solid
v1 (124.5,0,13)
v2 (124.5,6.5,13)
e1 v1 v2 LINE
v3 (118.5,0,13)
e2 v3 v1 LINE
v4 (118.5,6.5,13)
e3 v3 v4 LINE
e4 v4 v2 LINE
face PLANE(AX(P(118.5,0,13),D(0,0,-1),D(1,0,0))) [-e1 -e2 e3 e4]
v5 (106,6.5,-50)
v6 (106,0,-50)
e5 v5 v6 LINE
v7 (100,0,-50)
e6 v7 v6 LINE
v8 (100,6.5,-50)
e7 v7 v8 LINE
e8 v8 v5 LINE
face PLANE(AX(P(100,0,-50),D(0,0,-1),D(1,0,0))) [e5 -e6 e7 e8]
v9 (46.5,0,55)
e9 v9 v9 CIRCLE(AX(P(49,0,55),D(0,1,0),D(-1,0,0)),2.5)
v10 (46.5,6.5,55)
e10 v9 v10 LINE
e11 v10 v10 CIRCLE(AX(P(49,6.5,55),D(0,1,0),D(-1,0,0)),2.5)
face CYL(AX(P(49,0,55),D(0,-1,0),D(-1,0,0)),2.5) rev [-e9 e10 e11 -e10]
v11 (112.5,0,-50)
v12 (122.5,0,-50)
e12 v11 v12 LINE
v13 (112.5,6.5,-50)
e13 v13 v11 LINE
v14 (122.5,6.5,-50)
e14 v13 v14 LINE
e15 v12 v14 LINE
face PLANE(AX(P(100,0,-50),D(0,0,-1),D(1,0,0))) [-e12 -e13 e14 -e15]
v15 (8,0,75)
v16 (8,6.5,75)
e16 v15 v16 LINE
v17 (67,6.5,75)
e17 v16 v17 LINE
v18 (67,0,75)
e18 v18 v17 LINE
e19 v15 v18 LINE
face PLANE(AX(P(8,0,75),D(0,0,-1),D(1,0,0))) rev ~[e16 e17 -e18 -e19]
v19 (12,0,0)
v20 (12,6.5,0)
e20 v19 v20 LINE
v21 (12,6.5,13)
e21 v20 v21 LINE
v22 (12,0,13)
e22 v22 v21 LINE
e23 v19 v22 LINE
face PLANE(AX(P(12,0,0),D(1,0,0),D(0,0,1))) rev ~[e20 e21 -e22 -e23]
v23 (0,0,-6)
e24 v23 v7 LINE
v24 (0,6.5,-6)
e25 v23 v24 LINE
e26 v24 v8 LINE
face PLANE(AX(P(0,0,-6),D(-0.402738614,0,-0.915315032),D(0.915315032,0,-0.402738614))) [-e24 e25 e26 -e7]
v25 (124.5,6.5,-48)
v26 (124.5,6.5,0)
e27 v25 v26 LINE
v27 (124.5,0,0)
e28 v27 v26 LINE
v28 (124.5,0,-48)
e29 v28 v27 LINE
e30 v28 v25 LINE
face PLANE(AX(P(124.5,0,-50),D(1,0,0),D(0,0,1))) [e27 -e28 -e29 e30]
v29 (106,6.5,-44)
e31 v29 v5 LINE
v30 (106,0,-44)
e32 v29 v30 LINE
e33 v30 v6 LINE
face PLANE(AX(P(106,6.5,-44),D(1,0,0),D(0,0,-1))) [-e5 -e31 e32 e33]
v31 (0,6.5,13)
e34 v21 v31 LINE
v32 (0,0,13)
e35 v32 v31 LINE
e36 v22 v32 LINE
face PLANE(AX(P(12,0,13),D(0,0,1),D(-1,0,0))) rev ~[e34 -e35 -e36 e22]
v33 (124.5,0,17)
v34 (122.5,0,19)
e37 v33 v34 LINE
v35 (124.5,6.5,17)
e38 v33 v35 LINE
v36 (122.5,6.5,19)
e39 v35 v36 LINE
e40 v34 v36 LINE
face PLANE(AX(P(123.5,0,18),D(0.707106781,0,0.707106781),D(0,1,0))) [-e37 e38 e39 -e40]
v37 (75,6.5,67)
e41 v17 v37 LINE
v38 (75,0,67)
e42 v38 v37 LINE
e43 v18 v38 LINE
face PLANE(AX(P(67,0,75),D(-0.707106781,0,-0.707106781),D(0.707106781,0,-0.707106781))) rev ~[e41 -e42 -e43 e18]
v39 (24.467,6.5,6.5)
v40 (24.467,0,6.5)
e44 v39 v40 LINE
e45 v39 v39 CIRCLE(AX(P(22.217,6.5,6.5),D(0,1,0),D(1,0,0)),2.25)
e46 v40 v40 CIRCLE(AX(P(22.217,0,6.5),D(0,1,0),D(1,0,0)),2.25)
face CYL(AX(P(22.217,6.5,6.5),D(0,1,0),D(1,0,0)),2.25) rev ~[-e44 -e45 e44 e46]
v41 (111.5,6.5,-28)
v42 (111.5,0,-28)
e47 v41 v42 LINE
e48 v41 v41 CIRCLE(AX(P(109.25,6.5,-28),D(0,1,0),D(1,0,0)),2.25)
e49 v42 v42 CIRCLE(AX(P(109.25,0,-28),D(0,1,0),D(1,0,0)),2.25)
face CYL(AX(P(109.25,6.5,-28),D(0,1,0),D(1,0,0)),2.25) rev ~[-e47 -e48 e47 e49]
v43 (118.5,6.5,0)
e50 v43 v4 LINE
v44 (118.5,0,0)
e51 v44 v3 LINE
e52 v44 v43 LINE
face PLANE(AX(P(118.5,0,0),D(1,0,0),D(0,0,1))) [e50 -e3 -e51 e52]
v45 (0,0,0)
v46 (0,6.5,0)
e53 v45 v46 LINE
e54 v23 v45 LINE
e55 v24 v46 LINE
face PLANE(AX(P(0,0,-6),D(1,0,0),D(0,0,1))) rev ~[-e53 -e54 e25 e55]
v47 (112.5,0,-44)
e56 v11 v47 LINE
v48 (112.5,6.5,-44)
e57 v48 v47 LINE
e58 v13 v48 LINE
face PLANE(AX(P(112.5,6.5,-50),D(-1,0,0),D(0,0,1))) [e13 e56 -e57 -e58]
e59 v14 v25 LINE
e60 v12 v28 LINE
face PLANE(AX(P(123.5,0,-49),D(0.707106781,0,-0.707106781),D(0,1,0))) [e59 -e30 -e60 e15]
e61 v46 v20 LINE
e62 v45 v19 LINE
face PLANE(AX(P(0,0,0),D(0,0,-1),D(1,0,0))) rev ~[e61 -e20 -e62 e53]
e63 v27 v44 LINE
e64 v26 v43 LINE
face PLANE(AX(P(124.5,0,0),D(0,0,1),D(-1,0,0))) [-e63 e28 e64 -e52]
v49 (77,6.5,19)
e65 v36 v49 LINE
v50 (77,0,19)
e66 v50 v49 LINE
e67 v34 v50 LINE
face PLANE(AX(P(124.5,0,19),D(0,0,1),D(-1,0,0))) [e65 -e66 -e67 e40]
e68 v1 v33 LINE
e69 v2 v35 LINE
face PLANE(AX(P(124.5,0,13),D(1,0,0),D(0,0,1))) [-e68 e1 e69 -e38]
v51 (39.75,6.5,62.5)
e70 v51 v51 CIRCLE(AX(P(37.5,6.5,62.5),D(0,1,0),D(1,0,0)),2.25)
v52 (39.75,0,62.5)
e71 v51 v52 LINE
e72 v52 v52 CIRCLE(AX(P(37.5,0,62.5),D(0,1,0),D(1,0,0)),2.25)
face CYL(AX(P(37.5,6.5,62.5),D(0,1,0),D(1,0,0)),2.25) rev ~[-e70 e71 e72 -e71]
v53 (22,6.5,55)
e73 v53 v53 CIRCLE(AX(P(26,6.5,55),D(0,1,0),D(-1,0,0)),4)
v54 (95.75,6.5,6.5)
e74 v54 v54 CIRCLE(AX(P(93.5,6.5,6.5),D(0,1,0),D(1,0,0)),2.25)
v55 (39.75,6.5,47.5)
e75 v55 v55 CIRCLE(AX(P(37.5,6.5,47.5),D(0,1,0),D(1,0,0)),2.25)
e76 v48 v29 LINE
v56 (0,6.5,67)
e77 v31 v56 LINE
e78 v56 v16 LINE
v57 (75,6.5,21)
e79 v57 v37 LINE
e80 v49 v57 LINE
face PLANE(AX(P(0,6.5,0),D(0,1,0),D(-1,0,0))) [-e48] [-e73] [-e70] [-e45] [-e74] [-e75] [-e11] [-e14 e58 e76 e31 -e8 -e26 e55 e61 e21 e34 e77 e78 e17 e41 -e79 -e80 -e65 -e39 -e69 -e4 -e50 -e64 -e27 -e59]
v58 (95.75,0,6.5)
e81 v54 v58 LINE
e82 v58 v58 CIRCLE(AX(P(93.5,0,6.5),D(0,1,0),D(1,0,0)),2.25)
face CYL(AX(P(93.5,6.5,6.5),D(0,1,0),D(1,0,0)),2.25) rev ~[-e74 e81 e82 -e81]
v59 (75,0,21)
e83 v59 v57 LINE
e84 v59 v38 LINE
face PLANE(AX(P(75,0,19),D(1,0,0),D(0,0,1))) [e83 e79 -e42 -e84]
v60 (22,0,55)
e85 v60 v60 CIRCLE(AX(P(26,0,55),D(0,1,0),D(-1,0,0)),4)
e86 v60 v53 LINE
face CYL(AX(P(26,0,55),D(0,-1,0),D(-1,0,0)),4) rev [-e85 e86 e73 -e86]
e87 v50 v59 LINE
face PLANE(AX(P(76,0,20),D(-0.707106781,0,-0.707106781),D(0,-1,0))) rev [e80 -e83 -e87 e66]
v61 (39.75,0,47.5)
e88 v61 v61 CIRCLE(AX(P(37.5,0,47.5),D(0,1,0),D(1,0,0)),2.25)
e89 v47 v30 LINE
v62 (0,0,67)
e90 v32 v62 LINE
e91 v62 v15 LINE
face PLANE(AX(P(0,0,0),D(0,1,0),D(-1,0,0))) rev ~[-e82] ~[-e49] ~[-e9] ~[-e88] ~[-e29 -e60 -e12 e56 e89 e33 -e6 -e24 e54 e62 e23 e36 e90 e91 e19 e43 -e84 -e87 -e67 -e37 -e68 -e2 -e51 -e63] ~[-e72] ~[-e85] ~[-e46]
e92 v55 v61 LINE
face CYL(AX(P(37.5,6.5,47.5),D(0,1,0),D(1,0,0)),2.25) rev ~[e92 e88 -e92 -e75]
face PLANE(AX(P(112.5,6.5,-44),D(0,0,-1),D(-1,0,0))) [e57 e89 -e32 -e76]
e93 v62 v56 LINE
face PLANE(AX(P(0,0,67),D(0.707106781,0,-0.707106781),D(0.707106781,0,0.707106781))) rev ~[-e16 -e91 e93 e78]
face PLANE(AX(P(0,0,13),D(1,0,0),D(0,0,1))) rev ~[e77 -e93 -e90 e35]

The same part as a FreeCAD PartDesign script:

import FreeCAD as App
import Part
import Sketcher


def edges_at(feature, points):
    """Names of the edges that pass closest to the given points."""
    edges = feature.Shape.Edges
    near = lambda p: min(range(len(edges)), key=lambda i: edges[i].distToShape(Part.Vertex(*p))[0])
    return sorted({f"Edge{near(p) + 1}" for p in points})

doc = App.newDocument("Part")
params = doc.addObject("Spreadsheet::Sheet", "Params")
for row, (alias, value) in enumerate([
    ("sketch1_diameter", "5 mm"),
    ("sketch1_diameter2", "8 mm"),
    ("sketch1_width", "12 mm"),
    ("sketch1_width2", "6 mm"),
    ("sketch1_height", "13 mm"),
    ("pad1_length", "6.5 mm"),
    ("sketch2_height", "6 mm"),
    ("sketch2_width", "6.5 mm"),
    ("chamfer_size", "2 mm"),
    ("sketch3_diameter", "4.5 mm"),
    ("sketch4_diameter", "4.5 mm"),
], start=1):
    params.set(f"A{row}", alias)
    params.set(f"B{row}", "=" + value)
    params.setAlias(f"B{row}", alias)

body = doc.addObject("PartDesign::Body", "Body")

# Sketch on XZ plane
sketch1 = body.newObject("Sketcher::SketchObject", "Sketch")
sketch1.AttachmentSupport = (doc.getObject("XZ_Plane"), [""])
sketch1.MapMode = "FlatFace"
sketch1.addGeometry([
    Part.LineSegment(App.Vector(100, -50, 0), App.Vector(0, -6, 0)),  # 0
    Part.LineSegment(App.Vector(0, -6, 0), App.Vector(0, 0, 0)),  # 1
    Part.LineSegment(App.Vector(0, 0, 0), App.Vector(12, 0, 0)),  # 2
    Part.LineSegment(App.Vector(12, 0, 0), App.Vector(12, 13, 0)),  # 3
    Part.LineSegment(App.Vector(12, 13, 0), App.Vector(0, 13, 0)),  # 4
    Part.LineSegment(App.Vector(0, 13, 0), App.Vector(0, 67, 0)),  # 5
    Part.LineSegment(App.Vector(0, 67, 0), App.Vector(8, 75, 0)),  # 6
    Part.LineSegment(App.Vector(8, 75, 0), App.Vector(67, 75, 0)),  # 7
    Part.LineSegment(App.Vector(67, 75, 0), App.Vector(75, 67, 0)),  # 8
    Part.LineSegment(App.Vector(75, 67, 0), App.Vector(75, 19, 0)),  # 9
    Part.LineSegment(App.Vector(75, 19, 0), App.Vector(124.5, 19, 0)),  # 10
    Part.LineSegment(App.Vector(124.5, 19, 0), App.Vector(124.5, 13, 0)),  # 11
    Part.LineSegment(App.Vector(124.5, 13, 0), App.Vector(118.5, 13, 0)),  # 12
    Part.LineSegment(App.Vector(118.5, 13, 0), App.Vector(118.5, 0, 0)),  # 13
    Part.LineSegment(App.Vector(118.5, 0, 0), App.Vector(124.5, 0, 0)),  # 14
    Part.LineSegment(App.Vector(124.5, 0, 0), App.Vector(124.5, -50, 0)),  # 15
    Part.LineSegment(App.Vector(124.5, -50, 0), App.Vector(100, -50, 0)),  # 16
    Part.Circle(App.Vector(49, 55, 0), App.Vector(0, 0, 1), 2.5),  # 17
    Part.Circle(App.Vector(26, 55, 0), App.Vector(0, 0, 1), 4),  # 18
], False)
sketch1.addConstraint([
    Sketcher.Constraint("Coincident", 0, 2, 1, 1),
    Sketcher.Constraint("Coincident", 1, 2, 2, 1),
    Sketcher.Constraint("Coincident", 2, 2, 3, 1),
    Sketcher.Constraint("Coincident", 3, 2, 4, 1),
    Sketcher.Constraint("Coincident", 4, 2, 5, 1),
    Sketcher.Constraint("Coincident", 5, 2, 6, 1),
    Sketcher.Constraint("Coincident", 6, 2, 7, 1),
    Sketcher.Constraint("Coincident", 7, 2, 8, 1),
    Sketcher.Constraint("Coincident", 8, 2, 9, 1),
    Sketcher.Constraint("Coincident", 9, 2, 10, 1),
    Sketcher.Constraint("Coincident", 10, 2, 11, 1),
    Sketcher.Constraint("Coincident", 11, 2, 12, 1),
    Sketcher.Constraint("Coincident", 12, 2, 13, 1),
    Sketcher.Constraint("Coincident", 13, 2, 14, 1),
    Sketcher.Constraint("Coincident", 14, 2, 15, 1),
    Sketcher.Constraint("Coincident", 15, 2, 16, 1),
    Sketcher.Constraint("Coincident", 16, 2, 0, 1),
    Sketcher.Constraint("Vertical", 1),
    Sketcher.Constraint("Horizontal", 2),
    Sketcher.Constraint("Vertical", 3),
    Sketcher.Constraint("Horizontal", 4),
    Sketcher.Constraint("Vertical", 5),
    Sketcher.Constraint("Horizontal", 7),
    Sketcher.Constraint("Vertical", 9),
    Sketcher.Constraint("Horizontal", 10),
    Sketcher.Constraint("Vertical", 11),
    Sketcher.Constraint("Horizontal", 12),
    Sketcher.Constraint("Vertical", 13),
    Sketcher.Constraint("Horizontal", 14),
    Sketcher.Constraint("Vertical", 15),
    Sketcher.Constraint("Horizontal", 16),
    Sketcher.Constraint("Coincident", 1, 2, -1, 1),
    Sketcher.Constraint("PointOnObject", 4, 2, -2),
    Sketcher.Constraint("PointOnObject", 13, 2, -1),
    Sketcher.Constraint("Perpendicular", 6, 8),
    Sketcher.Constraint("Horizontal", 17, 3, 18, 3),
    Sketcher.Constraint("Horizontal", 5, 2, 8, 2),
    Sketcher.Constraint("Horizontal", 4, 2, 11, 2),
    Sketcher.Constraint("Vertical", 11, 2, 14, 2),
    Sketcher.Constraint("Equal", 14, 1),
    Sketcher.Constraint("Equal", 1, 11),
    Sketcher.Constraint("Equal", 6, 8),
    Sketcher.Constraint("Diameter", 17, 5.0),
    Sketcher.Constraint("Diameter", 18, 8.0),
    Sketcher.Constraint("DistanceX", 2, 1, 2, 2, 12.0),
    Sketcher.Constraint("DistanceX", 12, 2, 12, 1, 6.0),
    Sketcher.Constraint("DistanceY", 3, 1, 3, 2, 13.0),
    Sketcher.Constraint("DistanceY", 15, 2, 15, 1, 50.0),
    Sketcher.Constraint("DistanceX", -1, 1, 18, 3, 26.0),
    Sketcher.Constraint("DistanceX", -1, 1, 6, 2, 8.0),
    Sketcher.Constraint("DistanceY", -1, 1, 6, 2, 75.0),
    Sketcher.Constraint("DistanceX", -1, 1, 8, 2, 75.0),
    Sketcher.Constraint("DistanceX", 18, 3, 17, 3, 23.0),
    Sketcher.Constraint("DistanceY", 3, 2, 18, 3, 42.0),
    Sketcher.Constraint("DistanceX", 10, 1, 10, 2, 49.5),
    Sketcher.Constraint("DistanceX", 16, 2, 16, 1, 24.5),
])
sketch1.setExpression("Constraints[42]", "Params.sketch1_diameter")
sketch1.setExpression("Constraints[43]", "Params.sketch1_diameter2")
sketch1.setExpression("Constraints[44]", "Params.sketch1_width")
sketch1.setExpression("Constraints[45]", "Params.sketch1_width2")
sketch1.setExpression("Constraints[46]", "Params.sketch1_height")
pad1 = body.newObject("PartDesign::Pad", "Pad")
pad1.Profile = sketch1
pad1.setExpression("Length", "Params.pad1_length")
pad1.Reversed = True

# Sketch on XZ plane
sketch2 = body.newObject("Sketcher::SketchObject", "Sketch001")
sketch2.AttachmentSupport = (doc.getObject("XZ_Plane"), [""])
sketch2.MapMode = "FlatFace"
sketch2.AttachmentOffset = App.Placement(App.Vector(0, 0, -6.5), App.Rotation())
sketch2.addGeometry([
    Part.LineSegment(App.Vector(112.5, -44, 0), App.Vector(112.5, -50, 0)),
    Part.LineSegment(App.Vector(112.5, -50, 0), App.Vector(106, -50, 0)),
    Part.LineSegment(App.Vector(106, -50, 0), App.Vector(106, -44, 0)),
    Part.LineSegment(App.Vector(106, -44, 0), App.Vector(112.5, -44, 0)),
], False)
sketch2.addConstraint([
    Sketcher.Constraint("Coincident", 0, 2, 1, 1),
    Sketcher.Constraint("Coincident", 1, 2, 2, 1),
    Sketcher.Constraint("Coincident", 2, 2, 3, 1),
    Sketcher.Constraint("Coincident", 3, 2, 0, 1),
    Sketcher.Constraint("Vertical", 0),
    Sketcher.Constraint("Horizontal", 1),
    Sketcher.Constraint("Vertical", 2),
    Sketcher.Constraint("Horizontal", 3),
    Sketcher.Constraint("DistanceY", 0, 2, 0, 1, 6.0),
    Sketcher.Constraint("DistanceX", 1, 2, 1, 1, 6.5),
    Sketcher.Constraint("DistanceY", 0, 2, -1, 1, 50.0),
    Sketcher.Constraint("DistanceX", -1, 1, 1, 2, 106.0),
])
sketch2.setExpression("Constraints[8]", "Params.sketch2_height")
sketch2.setExpression("Constraints[9]", "Params.sketch2_width")
pocket1 = body.newObject("PartDesign::Pocket", "Pocket")
pocket1.Profile = sketch2
pocket1.Type = "ThroughAll"
pocket1.Reversed = True
doc.recompute()

chamfer = body.newObject("PartDesign::Chamfer", "Chamfer")
chamfer.Base = (pocket1, edges_at(pocket1, [(75, 3.25, 19), (124.5, 3.25, 19), (124.5, 3.25, -50)]))
chamfer.setExpression("Size", "Params.chamfer_size")

# Sketch on XZ plane
sketch3 = body.newObject("Sketcher::SketchObject", "Sketch002")
sketch3.AttachmentSupport = (doc.getObject("XZ_Plane"), [""])
sketch3.MapMode = "FlatFace"
sketch3.AttachmentOffset = App.Placement(App.Vector(0, 0, -6.5), App.Rotation())
sketch3.addGeometry([
    Part.Circle(App.Vector(37.5, 47.5, 0), App.Vector(0, 0, 1), 2.25),
    Part.Circle(App.Vector(37.5, 62.5, 0), App.Vector(0, 0, 1), 2.25),
], False)
sketch3.addConstraint([
    Sketcher.Constraint("Equal", 0, 1),
    Sketcher.Constraint("Vertical", 0, 3, 1, 3),
    Sketcher.Constraint("Diameter", 0, 4.5),
    Sketcher.Constraint("DistanceY", 0, 3, 1, 3, 15.0),
    Sketcher.Constraint("DistanceX", -1, 1, 0, 3, 37.5),
    Sketcher.Constraint("DistanceY", -1, 1, 0, 3, 47.5),
])
sketch3.setExpression("Constraints[2]", "Params.sketch3_diameter")
pocket2 = body.newObject("PartDesign::Pocket", "Pocket001")
pocket2.Profile = sketch3
pocket2.Type = "ThroughAll"
pocket2.Reversed = True

# Sketch on XZ plane
sketch4 = body.newObject("Sketcher::SketchObject", "Sketch003")
sketch4.AttachmentSupport = (doc.getObject("XZ_Plane"), [""])
sketch4.MapMode = "FlatFace"
sketch4.AttachmentOffset = App.Placement(App.Vector(0, 0, -6.5), App.Rotation())
sketch4.addGeometry([
    Part.Circle(App.Vector(22.217, 6.5, 0), App.Vector(0, 0, 1), 2.25),
    Part.Circle(App.Vector(93.5, 6.5, 0), App.Vector(0, 0, 1), 2.25),
    Part.Circle(App.Vector(109.25, -28, 0), App.Vector(0, 0, 1), 2.25),
], False)
sketch4.addConstraint([
    Sketcher.Constraint("Equal", 0, 1),
    Sketcher.Constraint("Equal", 1, 2),
    Sketcher.Constraint("Horizontal", 0, 3, 1, 3),
    Sketcher.Constraint("Diameter", 0, 4.5),
    Sketcher.Constraint("DistanceY", 2, 3, -1, 1, 28.0),
    Sketcher.Constraint("DistanceX", -1, 1, 0, 3, 22.217),
    Sketcher.Constraint("DistanceY", -1, 1, 0, 3, 6.5),
    Sketcher.Constraint("DistanceX", -1, 1, 1, 3, 93.5),
    Sketcher.Constraint("DistanceX", -1, 1, 2, 3, 109.25),
])
sketch4.setExpression("Constraints[3]", "Params.sketch4_diameter")
pocket3 = body.newObject("PartDesign::Pocket", "Pocket002")
pocket3.Profile = sketch4
pocket3.Type = "ThroughAll"
pocket3.Reversed = True

doc.recompute()
